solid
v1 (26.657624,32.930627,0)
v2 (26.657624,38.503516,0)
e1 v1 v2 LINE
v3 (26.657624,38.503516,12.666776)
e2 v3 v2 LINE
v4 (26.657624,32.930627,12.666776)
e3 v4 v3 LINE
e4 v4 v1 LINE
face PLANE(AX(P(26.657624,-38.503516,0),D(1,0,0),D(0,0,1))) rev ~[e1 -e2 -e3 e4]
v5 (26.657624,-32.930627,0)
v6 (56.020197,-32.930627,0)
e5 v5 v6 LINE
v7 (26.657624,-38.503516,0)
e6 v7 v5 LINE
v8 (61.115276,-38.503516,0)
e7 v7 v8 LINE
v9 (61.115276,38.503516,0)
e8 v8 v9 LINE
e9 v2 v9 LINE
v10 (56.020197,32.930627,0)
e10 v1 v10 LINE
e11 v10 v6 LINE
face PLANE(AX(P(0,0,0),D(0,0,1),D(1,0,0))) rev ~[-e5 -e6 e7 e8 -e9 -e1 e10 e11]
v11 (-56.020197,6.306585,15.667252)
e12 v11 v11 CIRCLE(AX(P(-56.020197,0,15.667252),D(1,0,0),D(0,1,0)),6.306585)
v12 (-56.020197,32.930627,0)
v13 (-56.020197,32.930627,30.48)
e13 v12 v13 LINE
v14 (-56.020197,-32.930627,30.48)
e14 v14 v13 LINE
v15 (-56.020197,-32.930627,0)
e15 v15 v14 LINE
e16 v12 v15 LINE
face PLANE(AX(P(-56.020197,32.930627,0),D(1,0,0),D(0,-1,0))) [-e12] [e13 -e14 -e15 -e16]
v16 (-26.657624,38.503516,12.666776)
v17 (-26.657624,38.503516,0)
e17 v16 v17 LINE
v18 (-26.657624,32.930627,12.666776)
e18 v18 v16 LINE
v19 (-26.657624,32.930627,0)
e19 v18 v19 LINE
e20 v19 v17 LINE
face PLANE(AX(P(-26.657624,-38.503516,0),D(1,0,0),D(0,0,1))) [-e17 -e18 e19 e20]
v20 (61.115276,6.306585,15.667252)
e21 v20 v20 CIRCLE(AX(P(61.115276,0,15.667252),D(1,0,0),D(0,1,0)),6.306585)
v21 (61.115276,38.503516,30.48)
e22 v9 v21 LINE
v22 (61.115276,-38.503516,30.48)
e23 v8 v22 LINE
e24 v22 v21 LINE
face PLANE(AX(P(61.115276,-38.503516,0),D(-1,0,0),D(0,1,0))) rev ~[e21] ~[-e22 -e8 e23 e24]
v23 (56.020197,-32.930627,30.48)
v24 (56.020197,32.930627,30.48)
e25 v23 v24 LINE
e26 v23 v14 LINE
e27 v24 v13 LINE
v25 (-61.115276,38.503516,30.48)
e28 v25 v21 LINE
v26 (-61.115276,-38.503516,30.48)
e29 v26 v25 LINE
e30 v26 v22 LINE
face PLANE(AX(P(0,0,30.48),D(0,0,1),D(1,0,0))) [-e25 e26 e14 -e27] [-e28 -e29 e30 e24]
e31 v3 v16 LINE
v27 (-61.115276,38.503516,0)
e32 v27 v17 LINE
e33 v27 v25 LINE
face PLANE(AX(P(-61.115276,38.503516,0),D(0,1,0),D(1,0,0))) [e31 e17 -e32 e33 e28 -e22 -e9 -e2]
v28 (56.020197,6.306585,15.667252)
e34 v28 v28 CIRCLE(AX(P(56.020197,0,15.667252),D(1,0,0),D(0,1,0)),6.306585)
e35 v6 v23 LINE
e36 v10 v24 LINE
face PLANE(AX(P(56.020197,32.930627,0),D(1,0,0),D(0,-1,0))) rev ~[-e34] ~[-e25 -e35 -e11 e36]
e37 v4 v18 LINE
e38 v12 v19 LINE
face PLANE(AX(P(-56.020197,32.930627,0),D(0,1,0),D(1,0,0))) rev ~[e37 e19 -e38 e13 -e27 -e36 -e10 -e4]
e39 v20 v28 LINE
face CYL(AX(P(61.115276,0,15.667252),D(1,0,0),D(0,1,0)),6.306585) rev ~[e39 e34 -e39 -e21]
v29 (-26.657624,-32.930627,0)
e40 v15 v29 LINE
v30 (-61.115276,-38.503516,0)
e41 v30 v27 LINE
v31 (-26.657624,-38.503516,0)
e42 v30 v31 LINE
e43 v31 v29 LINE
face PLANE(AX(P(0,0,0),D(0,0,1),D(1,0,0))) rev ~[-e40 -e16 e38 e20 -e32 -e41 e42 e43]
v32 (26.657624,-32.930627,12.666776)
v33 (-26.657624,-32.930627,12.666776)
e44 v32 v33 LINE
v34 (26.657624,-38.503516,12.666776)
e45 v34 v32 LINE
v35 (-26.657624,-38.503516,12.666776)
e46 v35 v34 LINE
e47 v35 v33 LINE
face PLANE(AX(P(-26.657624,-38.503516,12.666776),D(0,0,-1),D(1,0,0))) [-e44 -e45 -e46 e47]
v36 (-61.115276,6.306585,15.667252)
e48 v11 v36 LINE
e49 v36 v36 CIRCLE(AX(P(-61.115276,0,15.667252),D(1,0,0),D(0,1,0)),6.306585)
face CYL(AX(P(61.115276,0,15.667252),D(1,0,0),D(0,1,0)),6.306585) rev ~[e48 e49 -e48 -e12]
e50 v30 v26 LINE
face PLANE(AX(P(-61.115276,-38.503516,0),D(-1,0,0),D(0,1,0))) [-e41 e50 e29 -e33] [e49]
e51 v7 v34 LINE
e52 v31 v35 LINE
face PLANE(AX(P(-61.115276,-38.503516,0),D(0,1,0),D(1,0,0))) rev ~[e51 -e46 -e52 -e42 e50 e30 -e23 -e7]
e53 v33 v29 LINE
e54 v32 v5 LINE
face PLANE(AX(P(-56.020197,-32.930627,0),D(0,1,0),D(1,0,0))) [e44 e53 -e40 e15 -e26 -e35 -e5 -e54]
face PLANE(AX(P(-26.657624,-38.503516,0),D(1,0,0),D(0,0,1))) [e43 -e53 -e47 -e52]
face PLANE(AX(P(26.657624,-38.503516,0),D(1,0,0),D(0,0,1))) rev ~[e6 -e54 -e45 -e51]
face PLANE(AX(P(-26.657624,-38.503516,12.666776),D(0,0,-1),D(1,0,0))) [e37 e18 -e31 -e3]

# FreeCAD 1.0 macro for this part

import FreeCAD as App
import Part
import Sketcher

V = App.Vector
Q = App.Units.Quantity

doc = App.newDocument("Part")
body = doc.addObject("PartDesign::Body", "Body")

sketch1 = body.newObject("Sketcher::SketchObject", "Sketch")
sketch1.AttachmentSupport = (doc.getObject("XY_Plane"), [""])
sketch1.MapMode = "FlatFace"
sketch1.addGeometry([
    Part.LineSegment(V(-61.115276, 38.503516, 0), V(-61.115276, -38.503516, 0)),
    Part.LineSegment(V(-61.115276, -38.503516, 0), V(61.115276, -38.503516, 0)),
    Part.LineSegment(V(61.115276, -38.503516, 0), V(61.115276, 38.503516, 0)),
    Part.LineSegment(V(61.115276, 38.503516, 0), V(-61.115276, 38.503516, 0)),
], False)
sketch1.addConstraint([
    Sketcher.Constraint("Coincident", 0, 2, 1, 1),
    Sketcher.Constraint("Coincident", 1, 2, 2, 1),
    Sketcher.Constraint("Coincident", 2, 2, 3, 1),
    Sketcher.Constraint("Coincident", 3, 2, 0, 1),
    Sketcher.Constraint("Vertical", 0),
    Sketcher.Constraint("Horizontal", 1),
    Sketcher.Constraint("Vertical", 2),
    Sketcher.Constraint("Horizontal", 3),
    Sketcher.Constraint("Symmetric", 0, 2, 2, 2, -1, 1),
    Sketcher.Constraint("DistanceY", 0, 2, 0, 1, 77.007032),
    Sketcher.Constraint("DistanceX", 1, 1, 1, 2, 122.230552),
])
pad1 = body.newObject("PartDesign::Pad", "Pad")
pad1.Profile = sketch1
pad1.Length = Q("1.2 in")

sketch2 = body.newObject("Sketcher::SketchObject", "Sketch001")
sketch2.AttachmentSupport = (doc.getObject("XY_Plane"), [""])
sketch2.MapMode = "FlatFace"
sketch2.addGeometry([
    Part.LineSegment(V(-56.020197, -32.930627, 0), V(-56.020197, 32.930627, 0)),
    Part.LineSegment(V(-56.020197, 32.930627, 0), V(56.020197, 32.930627, 0)),
    Part.LineSegment(V(56.020197, 32.930627, 0), V(56.020197, -32.930627, 0)),
    Part.LineSegment(V(56.020197, -32.930627, 0), V(-56.020197, -32.930627, 0)),
], False)
sketch2.addConstraint([
    Sketcher.Constraint("Coincident", 0, 2, 1, 1),
    Sketcher.Constraint("Coincident", 1, 2, 2, 1),
    Sketcher.Constraint("Coincident", 2, 2, 3, 1),
    Sketcher.Constraint("Coincident", 3, 2, 0, 1),
    Sketcher.Constraint("Vertical", 0),
    Sketcher.Constraint("Horizontal", 1),
    Sketcher.Constraint("Vertical", 2),
    Sketcher.Constraint("Horizontal", 3),
    Sketcher.Constraint("Symmetric", 0, 2, 2, 2, -1, 1),
    Sketcher.Constraint("DistanceX", 1, 1, 1, 2, 112.040394),
    Sketcher.Constraint("DistanceY", 0, 1, 0, 2, 65.861254),
])
pocket1 = body.newObject("PartDesign::Pocket", "Pocket")
pocket1.Profile = sketch2
pocket1.Length = Q("4.75 in")
pocket1.Reversed = True

sketch3 = body.newObject("Sketcher::SketchObject", "Sketch002")
sketch3.AttachmentSupport = (doc.getObject("YZ_Plane"), [""])
sketch3.MapMode = "FlatFace"
sketch3.AttachmentOffset = App.Placement(V(0, 0, 61.115276), App.Rotation())
sketch3.addGeometry(Part.Circle(V(0, 15.667252, 0), V(0, 0, 1), 6.306585), False)
sketch3.addConstraint([
    Sketcher.Constraint("PointOnObject", 0, 3, -2),
    Sketcher.Constraint("Diameter", 0, 12.61317),
    Sketcher.Constraint("DistanceY", -1, 1, 0, 3, 15.667252),
])
pocket2 = body.newObject("PartDesign::Pocket", "Pocket001")
pocket2.Profile = sketch3
pocket2.Length = Q("8.95 in")

sketch4 = body.newObject("Sketcher::SketchObject", "Sketch003")
sketch4.AttachmentSupport = (doc.getObject("XZ_Plane"), [""])
sketch4.MapMode = "FlatFace"
sketch4.AttachmentOffset = App.Placement(V(0, 0, 38.503516), App.Rotation())
sketch4.addGeometry([
    Part.LineSegment(V(-26.657624, 12.666776, 0), V(-26.657624, 0, 0)),
    Part.LineSegment(V(-26.657624, 0, 0), V(26.657624, 0, 0)),
    Part.LineSegment(V(26.657624, 0, 0), V(26.657624, 12.666776, 0)),
    Part.LineSegment(V(26.657624, 12.666776, 0), V(-26.657624, 12.666776, 0)),
], False)
sketch4.addConstraint([
    Sketcher.Constraint("Coincident", 0, 2, 1, 1),
    Sketcher.Constraint("Coincident", 1, 2, 2, 1),
    Sketcher.Constraint("Coincident", 2, 2, 3, 1),
    Sketcher.Constraint("Coincident", 3, 2, 0, 1),
    Sketcher.Constraint("Vertical", 0),
    Sketcher.Constraint("Horizontal", 1),
    Sketcher.Constraint("Vertical", 2),
    Sketcher.Constraint("Horizontal", 3),
    Sketcher.Constraint("Symmetric", 0, 2, 1, 2, -1, 1),
    Sketcher.Constraint("DistanceX", 1, 1, 1, 2, 53.315248),
    Sketcher.Constraint("DistanceY", 0, 2, 0, 1, 12.666776),
])
pocket3 = body.newObject("PartDesign::Pocket", "Pocket002")
pocket3.Profile = sketch4
pocket3.Length = Q("7.07 in")

doc.recompute()
